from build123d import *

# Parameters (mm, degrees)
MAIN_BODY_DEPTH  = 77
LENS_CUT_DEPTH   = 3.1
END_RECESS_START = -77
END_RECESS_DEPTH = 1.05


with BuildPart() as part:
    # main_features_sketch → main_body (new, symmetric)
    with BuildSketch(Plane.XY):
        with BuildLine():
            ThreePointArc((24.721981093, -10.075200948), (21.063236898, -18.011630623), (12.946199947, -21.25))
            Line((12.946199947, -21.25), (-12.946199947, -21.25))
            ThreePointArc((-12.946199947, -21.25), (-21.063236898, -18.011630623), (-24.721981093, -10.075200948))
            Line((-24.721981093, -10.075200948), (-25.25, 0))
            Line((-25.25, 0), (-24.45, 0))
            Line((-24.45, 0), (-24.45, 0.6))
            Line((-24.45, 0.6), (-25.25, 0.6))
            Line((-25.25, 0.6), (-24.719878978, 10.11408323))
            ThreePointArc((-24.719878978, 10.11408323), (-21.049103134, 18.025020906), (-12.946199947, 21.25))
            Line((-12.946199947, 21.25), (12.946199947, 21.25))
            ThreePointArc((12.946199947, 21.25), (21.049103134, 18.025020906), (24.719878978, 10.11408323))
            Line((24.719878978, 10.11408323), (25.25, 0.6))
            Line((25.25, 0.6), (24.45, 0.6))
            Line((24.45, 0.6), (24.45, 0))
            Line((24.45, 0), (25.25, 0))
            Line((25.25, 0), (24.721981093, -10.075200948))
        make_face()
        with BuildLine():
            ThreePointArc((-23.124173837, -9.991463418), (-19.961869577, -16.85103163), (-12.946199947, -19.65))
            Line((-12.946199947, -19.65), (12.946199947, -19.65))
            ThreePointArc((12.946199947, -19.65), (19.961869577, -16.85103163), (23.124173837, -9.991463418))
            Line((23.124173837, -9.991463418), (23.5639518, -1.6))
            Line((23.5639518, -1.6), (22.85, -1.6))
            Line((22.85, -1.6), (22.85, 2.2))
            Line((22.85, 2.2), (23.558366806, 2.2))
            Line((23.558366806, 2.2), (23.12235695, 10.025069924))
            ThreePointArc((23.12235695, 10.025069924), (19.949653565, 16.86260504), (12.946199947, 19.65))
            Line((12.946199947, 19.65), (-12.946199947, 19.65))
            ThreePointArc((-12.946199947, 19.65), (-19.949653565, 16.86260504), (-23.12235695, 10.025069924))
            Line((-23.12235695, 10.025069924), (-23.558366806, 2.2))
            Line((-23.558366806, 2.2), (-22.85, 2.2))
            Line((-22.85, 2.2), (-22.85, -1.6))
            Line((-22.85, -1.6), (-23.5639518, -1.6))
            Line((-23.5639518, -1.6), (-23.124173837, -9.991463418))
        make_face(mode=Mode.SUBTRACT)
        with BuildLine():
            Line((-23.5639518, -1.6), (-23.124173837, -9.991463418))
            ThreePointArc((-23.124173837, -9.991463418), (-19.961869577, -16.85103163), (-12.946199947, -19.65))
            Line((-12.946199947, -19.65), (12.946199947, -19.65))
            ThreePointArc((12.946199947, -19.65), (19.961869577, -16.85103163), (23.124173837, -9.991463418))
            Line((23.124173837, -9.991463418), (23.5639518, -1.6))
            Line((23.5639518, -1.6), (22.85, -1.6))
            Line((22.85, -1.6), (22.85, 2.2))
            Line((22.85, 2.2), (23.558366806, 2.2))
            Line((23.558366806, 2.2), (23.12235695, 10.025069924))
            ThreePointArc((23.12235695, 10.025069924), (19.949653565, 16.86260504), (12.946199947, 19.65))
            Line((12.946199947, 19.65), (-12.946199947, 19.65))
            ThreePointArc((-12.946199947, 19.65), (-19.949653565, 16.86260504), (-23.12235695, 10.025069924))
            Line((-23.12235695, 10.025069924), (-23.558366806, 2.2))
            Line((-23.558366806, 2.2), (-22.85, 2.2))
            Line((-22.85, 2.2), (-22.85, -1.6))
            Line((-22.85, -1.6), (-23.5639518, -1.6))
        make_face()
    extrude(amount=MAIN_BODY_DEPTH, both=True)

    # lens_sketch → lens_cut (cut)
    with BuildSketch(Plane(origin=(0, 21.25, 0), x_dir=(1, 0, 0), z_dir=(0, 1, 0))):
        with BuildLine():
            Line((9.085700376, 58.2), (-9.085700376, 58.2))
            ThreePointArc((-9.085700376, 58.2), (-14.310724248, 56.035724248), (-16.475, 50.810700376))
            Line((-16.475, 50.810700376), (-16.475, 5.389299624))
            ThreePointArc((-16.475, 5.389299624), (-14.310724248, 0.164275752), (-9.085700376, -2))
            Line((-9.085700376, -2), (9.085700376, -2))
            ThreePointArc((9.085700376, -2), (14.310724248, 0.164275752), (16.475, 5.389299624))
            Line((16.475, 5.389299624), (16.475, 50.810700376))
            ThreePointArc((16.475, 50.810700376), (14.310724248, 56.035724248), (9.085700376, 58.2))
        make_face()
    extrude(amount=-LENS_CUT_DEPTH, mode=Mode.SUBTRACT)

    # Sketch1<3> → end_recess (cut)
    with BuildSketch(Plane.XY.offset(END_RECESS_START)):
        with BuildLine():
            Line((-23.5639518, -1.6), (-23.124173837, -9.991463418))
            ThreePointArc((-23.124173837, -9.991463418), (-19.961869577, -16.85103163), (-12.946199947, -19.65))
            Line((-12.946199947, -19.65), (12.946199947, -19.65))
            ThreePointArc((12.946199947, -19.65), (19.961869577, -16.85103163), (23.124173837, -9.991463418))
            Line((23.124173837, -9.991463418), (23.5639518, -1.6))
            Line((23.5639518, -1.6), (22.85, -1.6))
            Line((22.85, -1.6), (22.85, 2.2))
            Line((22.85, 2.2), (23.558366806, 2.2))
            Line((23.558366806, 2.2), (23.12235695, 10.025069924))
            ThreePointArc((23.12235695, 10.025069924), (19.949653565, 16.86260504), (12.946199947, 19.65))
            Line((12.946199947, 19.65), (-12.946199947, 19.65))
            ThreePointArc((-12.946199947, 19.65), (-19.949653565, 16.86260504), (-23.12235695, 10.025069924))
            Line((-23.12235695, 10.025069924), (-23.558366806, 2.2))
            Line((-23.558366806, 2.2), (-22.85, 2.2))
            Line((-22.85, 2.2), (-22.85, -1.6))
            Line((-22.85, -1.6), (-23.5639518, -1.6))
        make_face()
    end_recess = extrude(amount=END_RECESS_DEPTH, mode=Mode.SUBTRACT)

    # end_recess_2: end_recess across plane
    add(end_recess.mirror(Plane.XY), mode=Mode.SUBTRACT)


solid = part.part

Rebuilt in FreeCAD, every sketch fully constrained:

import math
import FreeCAD as App
import Part
import Sketcher
from FreeCAD import Vector
Q = App.Units.Quantity

doc = App.newDocument("Part")
body = doc.addObject("PartDesign::Body", "Body")

sketch1 = body.newObject("Sketcher::SketchObject", "Sketch")
sketch1.AttachmentSupport = (doc.getObject("XY_Plane"), [""])
sketch1.MapMode = "FlatFace"
sketch1.addGeometry([
    Part.ArcOfCircle(Part.Circle(Vector(12.9462, -9.458058, 0), Vector(0, 0, 1), 11.791942), math.radians(-90), math.radians(-3)),
    Part.LineSegment(Vector(24.721981, -10.075201, 0), Vector(25.25, 0, 0)),
    Part.LineSegment(Vector(25.25, 0, 0), Vector(24.45, 0, 0)),
    Part.LineSegment(Vector(24.45, 0, 0), Vector(24.45, 0.6, 0)),
    Part.LineSegment(Vector(24.45, 0.6, 0), Vector(25.25, 0.6, 0)),
    Part.LineSegment(Vector(25.25, 0.6, 0), Vector(24.719879, 10.114083, 0)),
    Part.ArcOfCircle(Part.Circle(Vector(12.9462, 9.458058, 0), Vector(0, 0, 1), 11.791942), math.radians(3.189201), math.radians(90)),
    Part.LineSegment(Vector(12.9462, 21.25, 0), Vector(-12.9462, 21.25, 0)),
    Part.ArcOfCircle(Part.Circle(Vector(-12.9462, 9.458058, 0), Vector(0, 0, 1), 11.791942), math.radians(90), math.radians(176.810799)),
    Part.LineSegment(Vector(-24.719879, 10.114083, 0), Vector(-25.25, 0.6, 0)),
    Part.LineSegment(Vector(-25.25, 0.6, 0), Vector(-24.45, 0.6, 0)),
    Part.LineSegment(Vector(-24.45, 0.6, 0), Vector(-24.45, 0, 0)),
    Part.LineSegment(Vector(-24.45, 0, 0), Vector(-25.25, 0, 0)),
    Part.LineSegment(Vector(-25.25, 0, 0), Vector(-24.721981, -10.075201, 0)),
    Part.ArcOfCircle(Part.Circle(Vector(-12.9462, -9.458058, 0), Vector(0, 0, 1), 11.791942), math.radians(-177), math.radians(-90)),
    Part.LineSegment(Vector(-12.9462, -21.25, 0), Vector(12.9462, -21.25, 0)),
], False)
sketch1.addConstraint([
    Sketcher.Constraint("Tangent", 0, 2, 1, 1),
    Sketcher.Constraint("Coincident", 1, 2, 2, 1),
    Sketcher.Constraint("Coincident", 2, 2, 3, 1),
    Sketcher.Constraint("Coincident", 3, 2, 4, 1),
    Sketcher.Constraint("Coincident", 4, 2, 5, 1),
    Sketcher.Constraint("Tangent", 5, 2, 6, 1),
    Sketcher.Constraint("Tangent", 6, 2, 7, 1),
    Sketcher.Constraint("Tangent", 7, 2, 8, 1),
    Sketcher.Constraint("Tangent", 8, 2, 9, 1),
    Sketcher.Constraint("Coincident", 9, 2, 10, 1),
    Sketcher.Constraint("Coincident", 10, 2, 11, 1),
    Sketcher.Constraint("Coincident", 11, 2, 12, 1),
    Sketcher.Constraint("Coincident", 12, 2, 13, 1),
    Sketcher.Constraint("Tangent", 13, 2, 14, 1),
    Sketcher.Constraint("Tangent", 14, 2, 15, 1),
    Sketcher.Constraint("Tangent", 15, 2, 0, 1),
    Sketcher.Constraint("Horizontal", 2),
    Sketcher.Constraint("Vertical", 3),
    Sketcher.Constraint("Horizontal", 4),
    Sketcher.Constraint("Horizontal", 7),
    Sketcher.Constraint("Horizontal", 10),
    Sketcher.Constraint("Vertical", 11),
    Sketcher.Constraint("Horizontal", 12),
    Sketcher.Constraint("Horizontal", 15),
    Sketcher.Constraint("Equal", 0, 6),
    Sketcher.Constraint("Equal", 6, 8),
    Sketcher.Constraint("Equal", 8, 14),
    Sketcher.Constraint("Symmetric", 0, 3, 8, 3, -1, 1),
    Sketcher.Constraint("Symmetric", 2, 2, 11, 2, -1, 1),
    Sketcher.Constraint("Symmetric", 5, 2, 8, 2, -2),
    Sketcher.Constraint("Symmetric", 1, 2, 12, 2, -2),
    Sketcher.Constraint("Horizontal", 4, 2, 9, 2),
    Sketcher.Constraint("Horizontal", 0, 2, 13, 2),
    Sketcher.Constraint("Vertical", 1, 2, 4, 2),
    Sketcher.Constraint("Angle", 1, Q("87 deg")),
    Sketcher.Constraint("DistanceX", 2, 2, 2, 1, 0.8),
    Sketcher.Constraint("DistanceY", 3, 1, 3, 2, 0.6),
    Sketcher.Constraint("DistanceX", -1, 1, 1, 2, 25.25),
    Sketcher.Constraint("DistanceY", -1, 1, 6, 2, 21.25),
    Sketcher.Constraint("Radius", 0, 11.791942),
])
pad1 = body.newObject("PartDesign::Pad", "Pad")
pad1.Profile = sketch1
pad1.Length = 154
pad1.Midplane = True

sketch2 = body.newObject("Sketcher::SketchObject", "Sketch001")
sketch2.AttachmentSupport = (doc.getObject("XZ_Plane"), [""])
sketch2.MapMode = "FlatFace"
sketch2.AttachmentOffset = App.Placement(Vector(0, 0, -21.25), App.Rotation())
sketch2.addGeometry([
    Part.LineSegment(Vector(9.0857, -58.2, 0), Vector(-9.0857, -58.2, 0)),
    Part.ArcOfCircle(Part.Circle(Vector(-9.0857, -50.8107, 0), Vector(0, 0, 1), 7.3893), math.radians(-180), math.radians(-90)),
    Part.LineSegment(Vector(-16.475, -50.8107, 0), Vector(-16.475, -5.3893, 0)),
    Part.ArcOfCircle(Part.Circle(Vector(-9.0857, -5.3893, 0), Vector(0, 0, 1), 7.3893), math.radians(90), math.radians(180)),
    Part.LineSegment(Vector(-9.0857, 2, 0), Vector(9.0857, 2, 0)),
    Part.ArcOfCircle(Part.Circle(Vector(9.0857, -5.3893, 0), Vector(0, 0, 1), 7.3893), math.radians(0), math.radians(90)),
    Part.LineSegment(Vector(16.475, -5.3893, 0), Vector(16.475, -50.8107, 0)),
    Part.ArcOfCircle(Part.Circle(Vector(9.0857, -50.8107, 0), Vector(0, 0, 1), 7.3893), math.radians(-90), math.radians(0)),
], False)
sketch2.addConstraint([
    Sketcher.Constraint("Tangent", 0, 2, 1, 2),
    Sketcher.Constraint("Tangent", 1, 1, 2, 1),
    Sketcher.Constraint("Tangent", 2, 2, 3, 2),
    Sketcher.Constraint("Tangent", 3, 1, 4, 1),
    Sketcher.Constraint("Tangent", 4, 2, 5, 2),
    Sketcher.Constraint("Tangent", 5, 1, 6, 1),
    Sketcher.Constraint("Tangent", 6, 2, 7, 2),
    Sketcher.Constraint("Tangent", 7, 1, 0, 1),
    Sketcher.Constraint("Horizontal", 0),
    Sketcher.Constraint("Vertical", 2),
    Sketcher.Constraint("Horizontal", 4),
    Sketcher.Constraint("Vertical", 6),
    Sketcher.Constraint("Equal", 1, 3),
    Sketcher.Constraint("Equal", 3, 5),
    Sketcher.Constraint("Equal", 5, 7),
    Sketcher.Constraint("DistanceY", -1, 1, 3, 1, 2.0),
    Sketcher.Constraint("DistanceY", 0, 2, -1, 1, 58.2),
    Sketcher.Constraint("Radius", 1, 7.3893),
    Sketcher.Constraint("DistanceX", 2, 2, 5, 1, 32.95),
    Sketcher.Constraint("DistanceX", 1, 1, -1, 1, 16.475),
])
pocket1 = body.newObject("PartDesign::Pocket", "Pocket")
pocket1.Profile = sketch2
pocket1.Length = 3.1
pocket1.Reversed = True

sketch3 = body.newObject("Sketcher::SketchObject", "Sketch002")
sketch3.AttachmentSupport = (doc.getObject("XY_Plane"), [""])
sketch3.MapMode = "FlatFace"
sketch3.AttachmentOffset = App.Placement(Vector(0, 0, -77), App.Rotation())
sketch3.addGeometry([
    Part.LineSegment(Vector(-23.563952, -1.6, 0), Vector(-23.124174, -9.991463, 0)),
    Part.ArcOfCircle(Part.Circle(Vector(-12.9462, -9.458058, 0), Vector(0, 0, 1), 10.191942), math.radians(-177), math.radians(-90)),
    Part.LineSegment(Vector(-12.9462, -19.65, 0), Vector(12.9462, -19.65, 0)),
    Part.ArcOfCircle(Part.Circle(Vector(12.9462, -9.458058, 0), Vector(0, 0, 1), 10.191942), math.radians(-90), math.radians(-3)),
    Part.LineSegment(Vector(23.124174, -9.991463, 0), Vector(23.563952, -1.6, 0)),
    Part.LineSegment(Vector(23.563952, -1.6, 0), Vector(22.85, -1.6, 0)),
    Part.LineSegment(Vector(22.85, -1.6, 0), Vector(22.85, 2.2, 0)),
    Part.LineSegment(Vector(22.85, 2.2, 0), Vector(23.558367, 2.2, 0)),
    Part.LineSegment(Vector(23.558367, 2.2, 0), Vector(23.122357, 10.02507, 0)),
    Part.ArcOfCircle(Part.Circle(Vector(12.9462, 9.458058, 0), Vector(0, 0, 1), 10.191942), math.radians(3.189201), math.radians(90)),
    Part.LineSegment(Vector(12.9462, 19.65, 0), Vector(-12.9462, 19.65, 0)),
    Part.ArcOfCircle(Part.Circle(Vector(-12.9462, 9.458058, 0), Vector(0, 0, 1), 10.191942), math.radians(90), math.radians(176.810799)),
    Part.LineSegment(Vector(-23.122357, 10.02507, 0), Vector(-23.558367, 2.2, 0)),
    Part.LineSegment(Vector(-23.558367, 2.2, 0), Vector(-22.85, 2.2, 0)),
    Part.LineSegment(Vector(-22.85, 2.2, 0), Vector(-22.85, -1.6, 0)),
    Part.LineSegment(Vector(-22.85, -1.6, 0), Vector(-23.563952, -1.6, 0)),
], False)
sketch3.addConstraint([
    Sketcher.Constraint("Tangent", 0, 2, 1, 1),
    Sketcher.Constraint("Tangent", 1, 2, 2, 1),
    Sketcher.Constraint("Tangent", 2, 2, 3, 1),
    Sketcher.Constraint("Tangent", 3, 2, 4, 1),
    Sketcher.Constraint("Coincident", 4, 2, 5, 1),
    Sketcher.Constraint("Coincident", 5, 2, 6, 1),
    Sketcher.Constraint("Coincident", 6, 2, 7, 1),
    Sketcher.Constraint("Coincident", 7, 2, 8, 1),
    Sketcher.Constraint("Tangent", 8, 2, 9, 1),
    Sketcher.Constraint("Tangent", 9, 2, 10, 1),
    Sketcher.Constraint("Tangent", 10, 2, 11, 1),
    Sketcher.Constraint("Tangent", 11, 2, 12, 1),
    Sketcher.Constraint("Coincident", 12, 2, 13, 1),
    Sketcher.Constraint("Coincident", 13, 2, 14, 1),
    Sketcher.Constraint("Coincident", 14, 2, 15, 1),
    Sketcher.Constraint("Coincident", 15, 2, 0, 1),
    Sketcher.Constraint("Horizontal", 2),
    Sketcher.Constraint("Horizontal", 5),
    Sketcher.Constraint("Vertical", 6),
    Sketcher.Constraint("Horizontal", 7),
    Sketcher.Constraint("Horizontal", 10),
    Sketcher.Constraint("Horizontal", 13),
    Sketcher.Constraint("Vertical", 14),
    Sketcher.Constraint("Horizontal", 15),
    Sketcher.Constraint("Equal", 1, 3),
    Sketcher.Constraint("Equal", 3, 9),
    Sketcher.Constraint("Equal", 9, 11),
    Sketcher.Constraint("Symmetric", 1, 3, 9, 3, -1, 1),
    Sketcher.Constraint("Symmetric", 0, 2, 3, 2, -2),
    Sketcher.Constraint("Symmetric", 8, 2, 11, 2, -2),
    Sketcher.Constraint("Symmetric", 6, 2, 13, 2, -2),
    Sketcher.Constraint("Horizontal", 5, 2, 14, 2),
    Sketcher.Constraint("Angle", 0, Q("-87 deg")),
    Sketcher.Constraint("DistanceY", 6, 1, 6, 2, 3.8),
    Sketcher.Constraint("DistanceY", 4, 2, -1, 1, 1.6),
    Sketcher.Constraint("DistanceY", 1, 2, -1, 1, 19.65),
    Sketcher.Constraint("DistanceX", -1, 1, 5, 2, 22.85),
    Sketcher.Constraint("Radius", 1, 10.191942),
    Sketcher.Constraint("DistanceX", 2, 1, 2, 2, 25.8924),
    Sketcher.Constraint("DistanceX", 7, 1, 7, 2, 0.708367),
])
pocket2 = body.newObject("PartDesign::Pocket", "Pocket001")
pocket2.Profile = sketch3
pocket2.Length = 1.05
pocket2.Reversed = True
doc.recompute()

mirrored = body.newObject("PartDesign::Mirrored", "Mirrored")
mirrored.Originals = [pocket2]
mirrored.MirrorPlane = (doc.getObject("XY_Plane"), [""])
body.Tip = mirrored

doc.recompute()
